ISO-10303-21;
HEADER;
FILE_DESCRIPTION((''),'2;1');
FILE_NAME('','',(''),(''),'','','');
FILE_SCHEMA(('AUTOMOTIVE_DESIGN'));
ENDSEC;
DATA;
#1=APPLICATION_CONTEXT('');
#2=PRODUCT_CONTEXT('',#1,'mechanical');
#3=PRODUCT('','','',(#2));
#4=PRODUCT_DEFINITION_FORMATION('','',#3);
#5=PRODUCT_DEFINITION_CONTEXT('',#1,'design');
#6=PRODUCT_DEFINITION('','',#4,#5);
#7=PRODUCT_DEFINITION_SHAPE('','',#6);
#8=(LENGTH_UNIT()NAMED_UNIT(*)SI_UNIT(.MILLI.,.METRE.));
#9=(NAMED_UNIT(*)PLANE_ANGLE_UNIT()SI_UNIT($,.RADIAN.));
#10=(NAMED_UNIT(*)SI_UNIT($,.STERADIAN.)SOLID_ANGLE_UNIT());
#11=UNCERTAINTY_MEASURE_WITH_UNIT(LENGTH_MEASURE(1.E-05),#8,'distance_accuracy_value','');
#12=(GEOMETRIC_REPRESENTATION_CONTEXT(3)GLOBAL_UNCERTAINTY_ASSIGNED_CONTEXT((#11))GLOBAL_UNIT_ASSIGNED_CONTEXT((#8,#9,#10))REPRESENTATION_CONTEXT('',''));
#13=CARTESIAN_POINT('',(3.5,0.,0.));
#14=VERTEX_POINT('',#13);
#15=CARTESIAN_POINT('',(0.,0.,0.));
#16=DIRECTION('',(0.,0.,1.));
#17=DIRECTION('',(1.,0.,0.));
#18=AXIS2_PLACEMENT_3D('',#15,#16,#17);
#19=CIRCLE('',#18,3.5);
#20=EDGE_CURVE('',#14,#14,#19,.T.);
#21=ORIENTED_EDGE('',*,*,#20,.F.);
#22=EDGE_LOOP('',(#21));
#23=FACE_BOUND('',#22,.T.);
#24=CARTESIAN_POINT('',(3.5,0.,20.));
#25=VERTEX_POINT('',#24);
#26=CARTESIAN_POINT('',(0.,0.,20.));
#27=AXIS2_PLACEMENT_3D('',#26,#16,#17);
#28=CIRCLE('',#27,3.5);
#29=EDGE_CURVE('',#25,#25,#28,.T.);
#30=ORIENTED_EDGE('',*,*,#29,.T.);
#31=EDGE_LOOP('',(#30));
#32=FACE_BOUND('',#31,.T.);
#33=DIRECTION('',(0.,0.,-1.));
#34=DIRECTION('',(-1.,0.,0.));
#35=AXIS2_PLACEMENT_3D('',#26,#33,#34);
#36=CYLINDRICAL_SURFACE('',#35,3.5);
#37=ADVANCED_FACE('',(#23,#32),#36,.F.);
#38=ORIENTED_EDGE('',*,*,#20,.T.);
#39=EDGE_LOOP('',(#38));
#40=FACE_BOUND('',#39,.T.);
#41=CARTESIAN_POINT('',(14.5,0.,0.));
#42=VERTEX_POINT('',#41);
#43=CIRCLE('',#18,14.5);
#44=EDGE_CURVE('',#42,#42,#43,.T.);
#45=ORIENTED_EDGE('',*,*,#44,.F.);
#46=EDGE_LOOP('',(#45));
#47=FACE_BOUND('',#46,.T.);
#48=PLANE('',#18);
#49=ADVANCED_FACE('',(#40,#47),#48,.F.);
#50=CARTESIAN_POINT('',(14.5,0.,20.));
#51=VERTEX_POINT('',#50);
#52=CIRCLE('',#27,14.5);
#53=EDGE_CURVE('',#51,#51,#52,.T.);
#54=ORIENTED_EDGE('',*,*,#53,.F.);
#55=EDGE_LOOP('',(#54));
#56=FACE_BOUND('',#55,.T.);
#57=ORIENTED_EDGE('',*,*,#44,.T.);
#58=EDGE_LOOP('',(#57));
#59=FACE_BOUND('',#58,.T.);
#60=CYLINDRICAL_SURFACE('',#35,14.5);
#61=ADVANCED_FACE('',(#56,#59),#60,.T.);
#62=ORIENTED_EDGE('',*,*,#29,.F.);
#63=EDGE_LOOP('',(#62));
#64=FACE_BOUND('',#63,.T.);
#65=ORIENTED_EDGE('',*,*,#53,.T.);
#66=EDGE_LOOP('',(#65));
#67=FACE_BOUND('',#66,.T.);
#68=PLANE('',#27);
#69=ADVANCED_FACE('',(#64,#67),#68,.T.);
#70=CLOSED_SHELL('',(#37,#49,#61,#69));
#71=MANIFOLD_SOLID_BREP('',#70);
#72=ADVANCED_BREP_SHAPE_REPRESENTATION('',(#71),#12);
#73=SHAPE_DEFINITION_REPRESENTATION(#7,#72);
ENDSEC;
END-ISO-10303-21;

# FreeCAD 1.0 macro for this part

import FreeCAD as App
import Part
import Sketcher
from FreeCAD import Vector

doc = App.newDocument("Part")
body = doc.addObject("PartDesign::Body", "Body")

# Sketch on XY plane
sketch1 = doc.addObject("Sketcher::SketchObject", "Sketch")
body.addObject(sketch1)
sketch1.AttachmentSupport = (doc.XY_Plane, [""])
sketch1.MapMode = "FlatFace"
sketch1.addGeometry([
    Part.Circle(Vector(0, 0, 0), Vector(0, 0, 1), 14.5),
    Part.Circle(Vector(0, 0, 0), Vector(0, 0, 1), 3.5),
], False)
sketch1.addConstraint([
    Sketcher.Constraint("Coincident", 0, 3, -1, 1),
    Sketcher.Constraint("Coincident", 1, 3, -1, 1),
    Sketcher.Constraint("Diameter", 0, 29.0),
    Sketcher.Constraint("Diameter", 1, 7.0),
])
pad1 = doc.addObject("PartDesign::Pad", "Pad")
body.addObject(pad1)
pad1.Profile = sketch1
pad1.Length = 20

doc.recompute()
